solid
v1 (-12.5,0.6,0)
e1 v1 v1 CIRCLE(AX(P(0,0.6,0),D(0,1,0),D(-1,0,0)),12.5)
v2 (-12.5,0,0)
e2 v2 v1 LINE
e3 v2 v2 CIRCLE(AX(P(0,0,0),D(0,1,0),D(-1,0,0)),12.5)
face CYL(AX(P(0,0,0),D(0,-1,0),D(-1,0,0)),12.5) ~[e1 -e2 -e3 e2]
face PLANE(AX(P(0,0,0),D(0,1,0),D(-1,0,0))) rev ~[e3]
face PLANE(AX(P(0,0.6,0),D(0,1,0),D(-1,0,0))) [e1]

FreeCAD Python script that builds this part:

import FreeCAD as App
import Part
import Sketcher
Q = App.Units.Quantity

doc = App.newDocument("Part")
params = doc.addObject("Spreadsheet::Sheet", "Params")
for row, (alias, value) in enumerate([
    ("sketch1_diameter", "25 mm"),
    ("pad1_length", "0.6 mm"),
], start=1):
    params.set(f"A{row}", alias)
    params.set(f"B{row}", "=" + value)
    params.setAlias(f"B{row}", alias)

body = doc.addObject("PartDesign::Body", "Body")

# Sketch on XZ plane
sketch1 = body.newObject("Sketcher::SketchObject", "Sketch")
sketch1.AttachmentSupport = (doc.getObject("XZ_Plane"), [""])
sketch1.MapMode = "FlatFace"
sketch1.addGeometry(Part.Circle(App.Vector(0, 0, 0), App.Vector(0, 0, 1), 12), False)
sketch1.addConstraint(Sketcher.Constraint("Coincident", 0, 3, -1, 1))
sketch1.addConstraint(Sketcher.Constraint("Diameter", 0, Q("25 mm")))
sketch1.setExpression("Constraints[1]", "Params.sketch1_diameter")
pad1 = body.newObject("PartDesign::Pad", "Pad")
pad1.Profile = sketch1
pad1.setExpression("Length", "Params.pad1_length")
pad1.Reversed = True

doc.recompute()
